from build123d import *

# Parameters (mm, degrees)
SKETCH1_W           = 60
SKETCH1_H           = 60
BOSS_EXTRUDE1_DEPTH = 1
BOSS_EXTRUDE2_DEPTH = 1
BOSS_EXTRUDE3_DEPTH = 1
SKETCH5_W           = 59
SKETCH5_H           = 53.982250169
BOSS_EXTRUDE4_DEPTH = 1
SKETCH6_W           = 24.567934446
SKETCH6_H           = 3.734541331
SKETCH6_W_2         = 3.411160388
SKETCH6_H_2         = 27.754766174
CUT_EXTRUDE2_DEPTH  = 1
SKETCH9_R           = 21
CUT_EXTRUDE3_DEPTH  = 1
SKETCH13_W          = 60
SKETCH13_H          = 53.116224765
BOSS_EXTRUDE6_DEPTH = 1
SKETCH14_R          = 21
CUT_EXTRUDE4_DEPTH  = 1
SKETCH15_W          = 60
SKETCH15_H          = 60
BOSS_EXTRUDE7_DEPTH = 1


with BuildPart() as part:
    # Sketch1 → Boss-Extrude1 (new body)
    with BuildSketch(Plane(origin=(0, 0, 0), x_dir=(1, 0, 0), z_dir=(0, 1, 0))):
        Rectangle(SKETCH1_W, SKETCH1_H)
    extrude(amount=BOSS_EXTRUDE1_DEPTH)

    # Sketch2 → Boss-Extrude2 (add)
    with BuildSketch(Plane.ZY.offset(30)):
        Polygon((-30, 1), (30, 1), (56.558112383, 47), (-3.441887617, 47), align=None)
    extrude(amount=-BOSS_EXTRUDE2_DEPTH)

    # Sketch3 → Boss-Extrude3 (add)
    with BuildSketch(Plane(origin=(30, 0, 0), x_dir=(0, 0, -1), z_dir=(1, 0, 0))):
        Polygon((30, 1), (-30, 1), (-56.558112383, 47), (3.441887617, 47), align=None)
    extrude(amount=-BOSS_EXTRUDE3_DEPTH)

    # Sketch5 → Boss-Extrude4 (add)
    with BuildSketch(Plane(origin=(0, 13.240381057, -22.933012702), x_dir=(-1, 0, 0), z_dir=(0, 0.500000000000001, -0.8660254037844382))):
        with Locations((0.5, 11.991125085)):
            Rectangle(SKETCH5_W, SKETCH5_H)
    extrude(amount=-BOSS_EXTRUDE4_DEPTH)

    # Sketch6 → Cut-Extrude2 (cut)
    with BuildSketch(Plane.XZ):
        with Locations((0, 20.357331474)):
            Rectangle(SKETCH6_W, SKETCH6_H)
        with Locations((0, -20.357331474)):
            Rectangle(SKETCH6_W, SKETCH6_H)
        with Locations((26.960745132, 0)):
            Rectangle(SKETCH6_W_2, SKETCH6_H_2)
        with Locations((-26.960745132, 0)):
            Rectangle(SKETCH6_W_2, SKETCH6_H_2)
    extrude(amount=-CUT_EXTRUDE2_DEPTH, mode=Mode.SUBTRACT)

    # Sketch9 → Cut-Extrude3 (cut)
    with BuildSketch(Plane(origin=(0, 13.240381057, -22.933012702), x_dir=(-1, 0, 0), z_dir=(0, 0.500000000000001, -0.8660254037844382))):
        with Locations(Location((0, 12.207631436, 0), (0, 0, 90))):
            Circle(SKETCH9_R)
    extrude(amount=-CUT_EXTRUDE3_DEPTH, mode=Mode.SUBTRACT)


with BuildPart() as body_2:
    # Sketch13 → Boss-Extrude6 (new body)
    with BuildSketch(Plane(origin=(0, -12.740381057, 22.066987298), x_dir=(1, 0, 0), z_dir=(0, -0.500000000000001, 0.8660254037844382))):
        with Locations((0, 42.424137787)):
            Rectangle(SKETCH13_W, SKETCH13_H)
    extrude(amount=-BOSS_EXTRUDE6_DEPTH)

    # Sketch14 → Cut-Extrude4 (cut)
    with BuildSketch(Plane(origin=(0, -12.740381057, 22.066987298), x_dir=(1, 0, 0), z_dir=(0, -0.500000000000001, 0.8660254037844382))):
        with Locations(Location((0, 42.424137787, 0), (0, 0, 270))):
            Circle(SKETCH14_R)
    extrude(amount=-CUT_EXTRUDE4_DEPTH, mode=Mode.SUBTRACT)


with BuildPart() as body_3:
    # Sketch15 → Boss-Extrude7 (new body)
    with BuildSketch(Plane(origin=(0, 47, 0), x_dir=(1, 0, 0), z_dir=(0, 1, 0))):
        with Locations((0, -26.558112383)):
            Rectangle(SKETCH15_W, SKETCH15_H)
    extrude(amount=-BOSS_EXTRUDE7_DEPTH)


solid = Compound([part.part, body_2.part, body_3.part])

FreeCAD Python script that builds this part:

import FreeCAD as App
import Part
import Sketcher
from FreeCAD import Vector
Q = App.Units.Quantity


def add_polygon(sketch, points):
    """Adds a closed chain of lines whose ends are joined by coincident constraints."""
    first, n = sketch.GeometryCount, len(points)
    for a, b in zip(points, points[1:] + points[:1]):
        sketch.addGeometry(Part.LineSegment(App.Vector(*a, 0), App.Vector(*b, 0)), False)
    for i in range(n):
        sketch.addConstraint(Sketcher.Constraint("Coincident", first + i, 2, first + (i + 1) % n, 1))

doc = App.newDocument("Part")
params = doc.addObject("Spreadsheet::Sheet", "Params")
for row, (alias, value) in enumerate([
    ("sketch1_width", "60 mm"),
    ("pad1_length", "1 mm"),
    ("sketch2_height", "60 mm"),
    ("pad2_length", "1 mm"),
    ("sketch3_height", "60 mm"),
    ("pad3_length", "1 mm"),
    ("sketch4_width", "59 mm"),
    ("pad4_length", "1 mm"),
    ("pocket1_length", "1 mm"),
    ("sketch6_diameter", "42 mm"),
    ("pocket2_length", "1 mm"),
    ("sketch7_width", "60 mm"),
    ("pad5_length", "1 mm"),
    ("sketch8_diameter", "42 mm"),
    ("pocket3_length", "1 mm"),
    ("sketch9_width", "60 mm"),
    ("pad6_length", "1 mm"),
], start=1):
    params.set(f"A{row}", alias)
    params.set(f"B{row}", "=" + value)
    params.setAlias(f"B{row}", alias)

body = doc.addObject("PartDesign::Body", "Body")

# Sketch on XZ plane
sketch1 = body.newObject("Sketcher::SketchObject", "Sketch")
sketch1.AttachmentSupport = (doc.getObject("XZ_Plane"), [""])
sketch1.MapMode = "FlatFace"
add_polygon(sketch1, [(-30, -30), (-30, 30), (30, 30), (30, -30)])  # lines 0-3
sketch1.addConstraint(Sketcher.Constraint("Vertical", 0))
sketch1.addConstraint(Sketcher.Constraint("Horizontal", 1))
sketch1.addConstraint(Sketcher.Constraint("Vertical", 2))
sketch1.addConstraint(Sketcher.Constraint("Horizontal", 3))
sketch1.addConstraint(Sketcher.Constraint("Symmetric", 0, 2, 2, 2, -1, 1))
sketch1.addConstraint(Sketcher.Constraint("Equal", 3, 0))
sketch1.addConstraint(Sketcher.Constraint("DistanceX", 1, 1, 1, 2, 60.0))
sketch1.setExpression("Constraints[10]", "Params.sketch1_width")
pad1 = body.newObject("PartDesign::Pad", "Pad")
pad1.Profile = sketch1
pad1.setExpression("Length", "Params.pad1_length")
pad1.Reversed = True

# Sketch on YZ plane
sketch2 = body.newObject("Sketcher::SketchObject", "Sketch001")
sketch2.AttachmentSupport = (doc.getObject("YZ_Plane"), [""])
sketch2.MapMode = "FlatFace"
sketch2.AttachmentOffset = App.Placement(Vector(0, 0, -30), App.Rotation())
add_polygon(sketch2, [(1, -30), (1, 30), (47, 57), (47, -3)])  # lines 0-3
sketch2.addConstraint(Sketcher.Constraint("Vertical", 0))
sketch2.addConstraint(Sketcher.Constraint("Vertical", 2))
sketch2.addConstraint(Sketcher.Constraint("Parallel", 1, 3))
sketch2.addConstraint(Sketcher.Constraint("DistanceY", 0, 1, 0, 2, 60.0))
sketch2.addConstraint(Sketcher.Constraint("Angle", 1, Q("30 deg")))
sketch2.addConstraint(Sketcher.Constraint("DistanceX", -1, 1, 0, 2, 1.0))
sketch2.addConstraint(Sketcher.Constraint("DistanceY", -1, 1, 0, 2, 30.0))
sketch2.addConstraint(Sketcher.Constraint("DistanceX", -1, 1, 1, 2, 47.0))
sketch2.setExpression("Constraints[7]", "Params.sketch2_height")
pad2 = body.newObject("PartDesign::Pad", "Pad001")
pad2.Profile = sketch2
pad2.setExpression("Length", "Params.pad2_length")

# Sketch on YZ plane
sketch3 = body.newObject("Sketcher::SketchObject", "Sketch002")
sketch3.AttachmentSupport = (doc.getObject("YZ_Plane"), [""])
sketch3.MapMode = "FlatFace"
sketch3.AttachmentOffset = App.Placement(Vector(0, 0, 30), App.Rotation())
add_polygon(sketch3, [(1, 30), (1, -30), (47, -3), (47, 57)])  # lines 0-3
sketch3.addConstraint(Sketcher.Constraint("Vertical", 0))
sketch3.addConstraint(Sketcher.Constraint("Vertical", 2))
sketch3.addConstraint(Sketcher.Constraint("Parallel", 1, 3))
sketch3.addConstraint(Sketcher.Constraint("DistanceY", 0, 2, 0, 1, 60.0))
sketch3.addConstraint(Sketcher.Constraint("Angle", 1, Q("30 deg")))
sketch3.addConstraint(Sketcher.Constraint("DistanceX", -1, 1, 0, 2, 1.0))
sketch3.addConstraint(Sketcher.Constraint("DistanceY", 0, 2, -1, 1, 30.0))
sketch3.addConstraint(Sketcher.Constraint("DistanceX", -1, 1, 1, 2, 47.0))
sketch3.setExpression("Constraints[7]", "Params.sketch3_height")
pad3 = body.newObject("PartDesign::Pad", "Pad002")
pad3.Profile = sketch3
pad3.setExpression("Length", "Params.pad3_length")
pad3.Reversed = True

# Sketch on an angled plane
sketch4 = body.newObject("Sketcher::SketchObject", "Sketch003")
sketch4.Placement = App.Placement(Vector(0, 13.240381, -22.933013), App.Rotation(Vector(-1, 0, 0), Vector(0, 0.866025404, 0.5), Vector(0, 0.5, -0.866025404), "ZXY"))
add_polygon(sketch4, [(-29, 39), (-29, -15), (30, -15), (30, 39)])  # lines 0-3
sketch4.addConstraint(Sketcher.Constraint("Vertical", 0))
sketch4.addConstraint(Sketcher.Constraint("Horizontal", 1))
sketch4.addConstraint(Sketcher.Constraint("Vertical", 2))
sketch4.addConstraint(Sketcher.Constraint("Horizontal", 3))
sketch4.addConstraint(Sketcher.Constraint("DistanceX", 1, 1, 1, 2, 59.0))
sketch4.addConstraint(Sketcher.Constraint("DistanceX", 0, 2, -1, 1, 29.0))
sketch4.addConstraint(Sketcher.Constraint("DistanceY", 0, 2, -1, 1, 15.0))
sketch4.addConstraint(Sketcher.Constraint("DistanceY", 0, 2, 0, 1, 53.98225))
sketch4.setExpression("Constraints[8]", "Params.sketch4_width")
pad4 = body.newObject("PartDesign::Pad", "Pad003")
pad4.Profile = sketch4
pad4.setExpression("Length", "Params.pad4_length")
pad4.Reversed = True

# Sketch on XZ plane
sketch5 = body.newObject("Sketcher::SketchObject", "Sketch004")
sketch5.AttachmentSupport = (doc.getObject("XZ_Plane"), [""])
sketch5.MapMode = "FlatFace"
add_polygon(sketch5, [(-12.3, 22.2), (-12.3, 18.5), (12.3, 18.5), (12.3, 22.2)])  # lines 0-3
add_polygon(sketch5, [(-12.3, -18.5), (-12.3, -22.2), (12.3, -22.2), (12.3, -18.5)])  # lines 4-7
add_polygon(sketch5, [(25.3, 13.9), (25.3, -13.9), (28.7, -13.9), (28.7, 13.9)])  # lines 8-11
add_polygon(sketch5, [(-28.7, 13.9), (-28.7, -13.9), (-25.3, -13.9), (-25.3, 13.9)])  # lines 12-15
sketch5.addConstraint(Sketcher.Constraint("Vertical", 0))
sketch5.addConstraint(Sketcher.Constraint("Horizontal", 1))
sketch5.addConstraint(Sketcher.Constraint("Vertical", 2))
sketch5.addConstraint(Sketcher.Constraint("Horizontal", 3))
sketch5.addConstraint(Sketcher.Constraint("Vertical", 4))
sketch5.addConstraint(Sketcher.Constraint("Horizontal", 5))
sketch5.addConstraint(Sketcher.Constraint("Vertical", 6))
sketch5.addConstraint(Sketcher.Constraint("Horizontal", 7))
sketch5.addConstraint(Sketcher.Constraint("Vertical", 8))
sketch5.addConstraint(Sketcher.Constraint("Horizontal", 9))
sketch5.addConstraint(Sketcher.Constraint("Vertical", 10))
sketch5.addConstraint(Sketcher.Constraint("Horizontal", 11))
sketch5.addConstraint(Sketcher.Constraint("Vertical", 12))
sketch5.addConstraint(Sketcher.Constraint("Horizontal", 13))
sketch5.addConstraint(Sketcher.Constraint("Vertical", 14))
sketch5.addConstraint(Sketcher.Constraint("Horizontal", 15))
sketch5.addConstraint(Sketcher.Constraint("Symmetric", 2, 2, 4, 2, -1, 1))
sketch5.addConstraint(Sketcher.Constraint("Symmetric", 0, 2, 6, 2, -1, 1))
sketch5.addConstraint(Sketcher.Constraint("Symmetric", 10, 2, 12, 2, -1, 1))
sketch5.addConstraint(Sketcher.Constraint("Symmetric", 8, 2, 14, 2, -1, 1))
sketch5.addConstraint(Sketcher.Constraint("Horizontal", 9, 2, 12, 2))
sketch5.addConstraint(Sketcher.Constraint("Vertical", 3, 2, 4, 2))
sketch5.addConstraint(Sketcher.Constraint("DistanceX", 9, 1, 9, 2, 3.41116))
sketch5.addConstraint(Sketcher.Constraint("DistanceY", 0, 2, 0, 1, 3.734541))
sketch5.addConstraint(Sketcher.Constraint("DistanceX", 1, 1, 1, 2, 24.567934))
sketch5.addConstraint(Sketcher.Constraint("DistanceY", 8, 2, 8, 1, 27.754766))
sketch5.addConstraint(Sketcher.Constraint("DistanceY", -1, 1, 0, 2, 18.490061))
sketch5.addConstraint(Sketcher.Constraint("DistanceX", 6, 2, 9, 2, 16.382358))
pocket1 = body.newObject("PartDesign::Pocket", "Pocket")
pocket1.Profile = sketch5
pocket1.setExpression("Length", "Params.pocket1_length")

# Sketch on an angled plane
sketch6 = body.newObject("Sketcher::SketchObject", "Sketch005")
sketch6.Placement = App.Placement(Vector(0, 13.240381, -22.933013), App.Rotation(Vector(-1, 0, 0), Vector(0, 0.866025404, 0.5), Vector(0, 0.5, -0.866025404), "ZXY"))
sketch6.addGeometry(Part.Circle(Vector(0, 12, 0), Vector(0, 0, 1), 21), False)
sketch6.addConstraint(Sketcher.Constraint("PointOnObject", 0, 3, -2))
sketch6.addConstraint(Sketcher.Constraint("Diameter", 0, 42.0))
sketch6.addConstraint(Sketcher.Constraint("DistanceY", -1, 1, 0, 3, 12.207631))
sketch6.setExpression("Constraints[1]", "Params.sketch6_diameter")
pocket2 = body.newObject("PartDesign::Pocket", "Pocket001")
pocket2.Profile = sketch6
pocket2.setExpression("Length", "Params.pocket2_length")
body2 = doc.addObject("PartDesign::Body", "Body001")

# Sketch on an angled plane
sketch7 = body2.newObject("Sketcher::SketchObject", "Sketch006")
sketch7.Placement = App.Placement(Vector(0, -12.740381, 22.066987), App.Rotation(Vector(1, 0, 0), Vector(0, 0.866025404, 0.5), Vector(0, -0.5, 0.866025404), "ZXY"))
add_polygon(sketch7, [(-30, 69), (-30, 16), (30, 16), (30, 69)])  # lines 0-3
sketch7.addConstraint(Sketcher.Constraint("Vertical", 0))
sketch7.addConstraint(Sketcher.Constraint("Horizontal", 1))
sketch7.addConstraint(Sketcher.Constraint("Vertical", 2))
sketch7.addConstraint(Sketcher.Constraint("Horizontal", 3))
sketch7.addConstraint(Sketcher.Constraint("DistanceX", 1, 1, 1, 2, 60.0))
sketch7.addConstraint(Sketcher.Constraint("DistanceX", 0, 2, -1, 1, 30.0))
sketch7.addConstraint(Sketcher.Constraint("DistanceY", 0, 2, 0, 1, 53.116225))
sketch7.addConstraint(Sketcher.Constraint("DistanceY", -1, 1, 2, 2, 68.98225))
sketch7.setExpression("Constraints[8]", "Params.sketch7_width")
pad5 = body2.newObject("PartDesign::Pad", "Pad004")
pad5.Profile = sketch7
pad5.setExpression("Length", "Params.pad5_length")
pad5.Reversed = True

# Sketch on an angled plane
sketch8 = body2.newObject("Sketcher::SketchObject", "Sketch007")
sketch8.Placement = App.Placement(Vector(0, -12.740381, 22.066987), App.Rotation(Vector(1, 0, 0), Vector(0, 0.866025404, 0.5), Vector(0, -0.5, 0.866025404), "ZXY"))
sketch8.addGeometry(Part.Circle(Vector(0, 42, 0), Vector(0, 0, 1), 21), False)
sketch8.addConstraint(Sketcher.Constraint("PointOnObject", 0, 3, -2))
sketch8.addConstraint(Sketcher.Constraint("Diameter", 0, 42.0))
sketch8.addConstraint(Sketcher.Constraint("DistanceY", -1, 1, 0, 3, 42.424138))
sketch8.setExpression("Constraints[1]", "Params.sketch8_diameter")
pocket3 = body2.newObject("PartDesign::Pocket", "Pocket002")
pocket3.Profile = sketch8
pocket3.setExpression("Length", "Params.pocket3_length")
body3 = doc.addObject("PartDesign::Body", "Body002")

# Sketch on XZ plane
sketch9 = body3.newObject("Sketcher::SketchObject", "Sketch008")
sketch9.AttachmentSupport = (doc.getObject("XZ_Plane002"), [""])
sketch9.MapMode = "FlatFace"
sketch9.AttachmentOffset = App.Placement(Vector(0, 0, -47), App.Rotation())
add_polygon(sketch9, [(-30, -3), (-30, 57), (30, 57), (30, -3)])  # lines 0-3
sketch9.addConstraint(Sketcher.Constraint("Vertical", 0))
sketch9.addConstraint(Sketcher.Constraint("Horizontal", 1))
sketch9.addConstraint(Sketcher.Constraint("Vertical", 2))
sketch9.addConstraint(Sketcher.Constraint("Horizontal", 3))
sketch9.addConstraint(Sketcher.Constraint("Equal", 3, 0))
sketch9.addConstraint(Sketcher.Constraint("DistanceX", 1, 1, 1, 2, 60.0))
sketch9.addConstraint(Sketcher.Constraint("DistanceX", 0, 2, -1, 1, 30.0))
sketch9.addConstraint(Sketcher.Constraint("DistanceY", -1, 1, 0, 2, 56.558112))
sketch9.setExpression("Constraints[9]", "Params.sketch9_width")
pad6 = body3.newObject("PartDesign::Pad", "Pad005")
pad6.Profile = sketch9
pad6.setExpression("Length", "Params.pad6_length")

doc.recompute()
